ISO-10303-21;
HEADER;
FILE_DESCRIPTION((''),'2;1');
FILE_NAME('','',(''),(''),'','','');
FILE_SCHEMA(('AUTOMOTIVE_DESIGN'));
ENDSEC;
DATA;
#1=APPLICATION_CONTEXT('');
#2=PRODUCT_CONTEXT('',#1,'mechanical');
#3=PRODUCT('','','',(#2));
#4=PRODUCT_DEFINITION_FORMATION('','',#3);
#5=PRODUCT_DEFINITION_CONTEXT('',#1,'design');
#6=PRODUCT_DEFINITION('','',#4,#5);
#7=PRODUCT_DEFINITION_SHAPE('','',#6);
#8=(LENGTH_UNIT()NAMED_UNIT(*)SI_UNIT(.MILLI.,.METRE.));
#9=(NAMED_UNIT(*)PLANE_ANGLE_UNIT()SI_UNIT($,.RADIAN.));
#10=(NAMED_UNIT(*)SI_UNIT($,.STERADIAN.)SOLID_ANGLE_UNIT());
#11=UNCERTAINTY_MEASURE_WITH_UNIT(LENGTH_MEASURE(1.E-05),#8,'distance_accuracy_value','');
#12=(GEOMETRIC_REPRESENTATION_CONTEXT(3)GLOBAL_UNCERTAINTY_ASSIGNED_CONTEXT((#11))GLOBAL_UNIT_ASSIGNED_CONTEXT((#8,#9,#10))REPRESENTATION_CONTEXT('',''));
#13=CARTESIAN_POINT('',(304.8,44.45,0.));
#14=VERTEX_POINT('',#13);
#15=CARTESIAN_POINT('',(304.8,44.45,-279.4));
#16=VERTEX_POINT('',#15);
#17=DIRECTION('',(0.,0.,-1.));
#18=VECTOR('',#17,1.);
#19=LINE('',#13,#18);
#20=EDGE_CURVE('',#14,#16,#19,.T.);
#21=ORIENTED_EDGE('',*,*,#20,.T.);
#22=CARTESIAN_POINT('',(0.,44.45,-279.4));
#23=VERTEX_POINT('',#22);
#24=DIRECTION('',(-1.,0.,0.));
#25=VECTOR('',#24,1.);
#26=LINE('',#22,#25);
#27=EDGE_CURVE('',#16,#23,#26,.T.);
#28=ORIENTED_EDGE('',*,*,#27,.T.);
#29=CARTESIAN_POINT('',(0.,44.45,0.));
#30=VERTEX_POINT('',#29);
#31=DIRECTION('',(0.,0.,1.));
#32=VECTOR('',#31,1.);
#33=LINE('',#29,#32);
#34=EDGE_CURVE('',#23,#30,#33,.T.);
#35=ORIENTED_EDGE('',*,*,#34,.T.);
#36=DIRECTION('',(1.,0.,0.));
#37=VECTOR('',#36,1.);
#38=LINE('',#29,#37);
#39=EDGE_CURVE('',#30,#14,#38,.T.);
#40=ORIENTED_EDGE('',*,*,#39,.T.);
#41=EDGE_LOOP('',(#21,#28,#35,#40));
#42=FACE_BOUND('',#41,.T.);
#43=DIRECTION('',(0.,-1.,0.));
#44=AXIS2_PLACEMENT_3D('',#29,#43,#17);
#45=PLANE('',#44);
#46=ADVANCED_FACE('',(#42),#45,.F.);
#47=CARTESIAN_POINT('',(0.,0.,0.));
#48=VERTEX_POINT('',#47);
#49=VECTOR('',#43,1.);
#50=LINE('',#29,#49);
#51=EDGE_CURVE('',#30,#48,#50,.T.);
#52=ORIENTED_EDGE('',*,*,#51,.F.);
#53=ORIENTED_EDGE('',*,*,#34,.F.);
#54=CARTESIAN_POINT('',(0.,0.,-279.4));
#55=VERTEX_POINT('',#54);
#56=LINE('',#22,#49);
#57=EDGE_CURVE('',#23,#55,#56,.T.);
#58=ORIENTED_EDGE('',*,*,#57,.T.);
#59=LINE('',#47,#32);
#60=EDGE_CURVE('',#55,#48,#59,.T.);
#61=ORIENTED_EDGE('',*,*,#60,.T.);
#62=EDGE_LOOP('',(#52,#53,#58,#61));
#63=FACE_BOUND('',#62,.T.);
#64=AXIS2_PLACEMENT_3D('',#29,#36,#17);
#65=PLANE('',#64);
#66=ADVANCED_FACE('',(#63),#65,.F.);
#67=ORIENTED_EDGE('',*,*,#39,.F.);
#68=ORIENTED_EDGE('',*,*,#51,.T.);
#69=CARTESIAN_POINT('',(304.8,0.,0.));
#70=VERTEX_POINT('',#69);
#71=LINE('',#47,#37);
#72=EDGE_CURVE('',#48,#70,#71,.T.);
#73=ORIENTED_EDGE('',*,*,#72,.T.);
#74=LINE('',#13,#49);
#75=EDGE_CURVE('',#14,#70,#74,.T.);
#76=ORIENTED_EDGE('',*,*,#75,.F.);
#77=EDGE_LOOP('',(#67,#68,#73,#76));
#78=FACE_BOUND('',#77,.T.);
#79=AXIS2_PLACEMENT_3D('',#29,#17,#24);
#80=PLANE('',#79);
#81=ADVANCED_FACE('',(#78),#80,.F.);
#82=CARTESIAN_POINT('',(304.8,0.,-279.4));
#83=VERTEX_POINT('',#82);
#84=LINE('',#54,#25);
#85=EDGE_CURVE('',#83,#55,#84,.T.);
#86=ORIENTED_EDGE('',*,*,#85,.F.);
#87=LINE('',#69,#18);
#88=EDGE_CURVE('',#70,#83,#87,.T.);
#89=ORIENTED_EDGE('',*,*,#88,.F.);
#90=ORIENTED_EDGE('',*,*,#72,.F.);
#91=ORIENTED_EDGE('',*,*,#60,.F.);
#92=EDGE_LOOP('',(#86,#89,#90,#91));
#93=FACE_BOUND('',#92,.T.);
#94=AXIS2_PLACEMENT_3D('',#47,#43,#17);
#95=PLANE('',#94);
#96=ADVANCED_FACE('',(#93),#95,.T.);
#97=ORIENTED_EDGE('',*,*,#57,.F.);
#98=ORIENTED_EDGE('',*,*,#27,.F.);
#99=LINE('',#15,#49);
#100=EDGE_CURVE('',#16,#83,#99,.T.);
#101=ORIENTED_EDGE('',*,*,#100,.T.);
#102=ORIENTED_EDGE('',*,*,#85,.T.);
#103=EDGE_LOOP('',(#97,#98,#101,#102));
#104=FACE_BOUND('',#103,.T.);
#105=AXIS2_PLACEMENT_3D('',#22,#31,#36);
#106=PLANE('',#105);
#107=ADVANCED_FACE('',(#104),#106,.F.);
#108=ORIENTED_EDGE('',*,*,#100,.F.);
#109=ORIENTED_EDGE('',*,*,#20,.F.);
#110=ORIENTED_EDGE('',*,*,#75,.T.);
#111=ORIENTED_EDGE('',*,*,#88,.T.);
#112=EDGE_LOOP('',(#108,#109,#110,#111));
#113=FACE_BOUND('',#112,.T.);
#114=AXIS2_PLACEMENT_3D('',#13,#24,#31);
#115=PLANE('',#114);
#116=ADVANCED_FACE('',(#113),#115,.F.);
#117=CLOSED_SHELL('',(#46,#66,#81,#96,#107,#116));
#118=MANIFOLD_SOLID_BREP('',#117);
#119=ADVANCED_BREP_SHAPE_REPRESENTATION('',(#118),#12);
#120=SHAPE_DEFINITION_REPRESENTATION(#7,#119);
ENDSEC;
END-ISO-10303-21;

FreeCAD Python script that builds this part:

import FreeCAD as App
import Part
import Sketcher

V = App.Vector
Q = App.Units.Quantity


def add_polygon(sketch, points):
    """Adds a closed chain of lines whose ends are joined by coincident constraints."""
    first, n = sketch.GeometryCount, len(points)
    for a, b in zip(points, points[1:] + points[:1]):
        sketch.addGeometry(Part.LineSegment(App.Vector(*a, 0), App.Vector(*b, 0)), False)
    for i in range(n):
        sketch.addConstraint(Sketcher.Constraint("Coincident", first + i, 2, first + (i + 1) % n, 1))

doc = App.newDocument("Part")
body = doc.addObject("PartDesign::Body", "Body")

# Sketch on XZ plane
sketch1 = body.newObject("Sketcher::SketchObject", "Sketch")
sketch1.AttachmentSupport = (doc.getObject("XZ_Plane"), [""])
sketch1.MapMode = "FlatFace"
add_polygon(sketch1, [(0, -279.4), (0, 0), (304.8, 0), (304.8, -279.4)])  # lines 0-3
sketch1.addConstraint(Sketcher.Constraint("Vertical", 0))
sketch1.addConstraint(Sketcher.Constraint("Horizontal", 1))
sketch1.addConstraint(Sketcher.Constraint("Vertical", 2))
sketch1.addConstraint(Sketcher.Constraint("Horizontal", 3))
sketch1.addConstraint(Sketcher.Constraint("Coincident", 0, 2, -1, 1))
sketch1.addConstraint(Sketcher.Constraint("DistanceX", 1, 1, 1, 2, Q("12 in")))
sketch1.addConstraint(Sketcher.Constraint("DistanceY", 0, 1, 0, 2, Q("11 in")))
pad1 = body.newObject("PartDesign::Pad", "Pad")
pad1.Profile = sketch1
pad1.Length = Q("1.75 in")
pad1.Reversed = True

doc.recompute()
